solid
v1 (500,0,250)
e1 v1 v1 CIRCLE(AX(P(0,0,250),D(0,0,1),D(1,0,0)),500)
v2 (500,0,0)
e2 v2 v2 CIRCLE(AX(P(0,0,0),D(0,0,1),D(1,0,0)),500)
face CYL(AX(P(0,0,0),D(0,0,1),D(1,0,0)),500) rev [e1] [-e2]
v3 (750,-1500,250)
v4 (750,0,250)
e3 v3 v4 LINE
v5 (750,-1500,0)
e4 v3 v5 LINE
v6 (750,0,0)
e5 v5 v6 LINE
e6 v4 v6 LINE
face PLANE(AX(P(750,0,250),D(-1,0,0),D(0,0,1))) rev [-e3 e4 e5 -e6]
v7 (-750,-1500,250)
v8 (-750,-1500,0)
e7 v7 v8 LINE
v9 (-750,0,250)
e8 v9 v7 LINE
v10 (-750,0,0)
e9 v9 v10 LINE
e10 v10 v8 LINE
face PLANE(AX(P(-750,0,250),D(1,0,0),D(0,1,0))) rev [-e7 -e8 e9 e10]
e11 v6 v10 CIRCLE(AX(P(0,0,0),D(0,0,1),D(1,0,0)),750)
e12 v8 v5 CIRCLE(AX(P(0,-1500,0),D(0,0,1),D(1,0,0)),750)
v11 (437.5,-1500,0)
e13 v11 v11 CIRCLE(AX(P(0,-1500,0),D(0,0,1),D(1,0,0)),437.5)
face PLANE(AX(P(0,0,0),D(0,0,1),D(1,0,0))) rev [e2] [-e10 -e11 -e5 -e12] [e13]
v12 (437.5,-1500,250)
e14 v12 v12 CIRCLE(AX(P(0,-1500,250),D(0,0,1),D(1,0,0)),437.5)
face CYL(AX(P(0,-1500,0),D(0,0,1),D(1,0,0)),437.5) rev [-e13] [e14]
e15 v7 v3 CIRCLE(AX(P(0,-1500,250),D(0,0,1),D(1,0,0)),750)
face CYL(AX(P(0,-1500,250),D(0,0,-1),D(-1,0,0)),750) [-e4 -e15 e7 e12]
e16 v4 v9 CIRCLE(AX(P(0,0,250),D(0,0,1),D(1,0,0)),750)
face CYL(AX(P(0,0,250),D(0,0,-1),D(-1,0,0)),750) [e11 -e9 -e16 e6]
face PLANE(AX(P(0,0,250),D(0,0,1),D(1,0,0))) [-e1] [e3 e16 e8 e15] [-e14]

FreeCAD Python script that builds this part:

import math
import FreeCAD as App
import Part
import Sketcher
from FreeCAD import Vector
Q = App.Units.Quantity

doc = App.newDocument("Part")
body = doc.addObject("PartDesign::Body", "Body")

sketch1 = doc.addObject("Sketcher::SketchObject", "Sketch")
body.addObject(sketch1)
sketch1.AttachmentSupport = (doc.XY_Plane, [""])
sketch1.MapMode = "FlatFace"
sketch1.addGeometry(Part.LineSegment(Vector(-750, 0, 0), Vector(-750, -1500, 0)), False)
sketch1.addGeometry(Part.ArcOfCircle(Part.Circle(Vector(0, -1500, 0), Vector(0, 0, 1), 750), math.radians(180), math.radians(360)), False)
sketch1.addGeometry(Part.LineSegment(Vector(750, -1500, 0), Vector(750, 0, 0)), False)
sketch1.addGeometry(Part.ArcOfCircle(Part.Circle(Vector(0, 0, 0), Vector(0, 0, 1), 750), math.radians(0), math.radians(180)), False)
sketch1.addConstraint(Sketcher.Constraint("Tangent", 0, 2, 1, 1))
sketch1.addConstraint(Sketcher.Constraint("Coincident", 1, 2, 2, 1))
sketch1.addConstraint(Sketcher.Constraint("Tangent", 2, 2, 3, 1))
sketch1.addConstraint(Sketcher.Constraint("Coincident", 3, 2, 0, 1))
sketch1.addConstraint(Sketcher.Constraint("Vertical", 0))
sketch1.addConstraint(Sketcher.Constraint("Vertical", 2))
sketch1.addConstraint(Sketcher.Constraint("Coincident", 3, 3, -1, 1))
sketch1.addConstraint(Sketcher.Constraint("Equal", 0, 2))
sketch1.addConstraint(Sketcher.Constraint("Radius", 1, Q("750 mm")))
sketch1.addConstraint(Sketcher.Constraint("DistanceY", 0, 2, 0, 1, Q("1500 mm")))
sketch1.addConstraint(Sketcher.Constraint("DistanceY", 1, 3, -1, 1, Q("1500 mm")))
pad1 = doc.addObject("PartDesign::Pad", "Pad")
body.addObject(pad1)
pad1.Profile = sketch1
pad1.Length = 250

sketch2 = doc.addObject("Sketcher::SketchObject", "Sketch001")
body.addObject(sketch2)
sketch2.AttachmentSupport = (doc.XY_Plane, [""])
sketch2.MapMode = "FlatFace"
sketch2.AttachmentOffset = App.Placement(Vector(0, 0, 250), App.Rotation())
sketch2.addGeometry(Part.Circle(Vector(0, 0, 0), Vector(0, 0, 1), 500), False)
sketch2.addGeometry(Part.Circle(Vector(0, -1500, 0), Vector(0, 0, 1), 438), False)
sketch2.addConstraint(Sketcher.Constraint("Coincident", 0, 3, -1, 1))
sketch2.addConstraint(Sketcher.Constraint("PointOnObject", 1, 3, -2))
sketch2.addConstraint(Sketcher.Constraint("Diameter", 0, Q("1000 mm")))
sketch2.addConstraint(Sketcher.Constraint("Diameter", 1, Q("875 mm")))
sketch2.addConstraint(Sketcher.Constraint("DistanceY", 1, 3, -1, 1, Q("1500 mm")))
pocket1 = doc.addObject("PartDesign::Pocket", "Pocket")
body.addObject(pocket1)
pocket1.Profile = sketch2
pocket1.Length = 250

doc.recompute()
